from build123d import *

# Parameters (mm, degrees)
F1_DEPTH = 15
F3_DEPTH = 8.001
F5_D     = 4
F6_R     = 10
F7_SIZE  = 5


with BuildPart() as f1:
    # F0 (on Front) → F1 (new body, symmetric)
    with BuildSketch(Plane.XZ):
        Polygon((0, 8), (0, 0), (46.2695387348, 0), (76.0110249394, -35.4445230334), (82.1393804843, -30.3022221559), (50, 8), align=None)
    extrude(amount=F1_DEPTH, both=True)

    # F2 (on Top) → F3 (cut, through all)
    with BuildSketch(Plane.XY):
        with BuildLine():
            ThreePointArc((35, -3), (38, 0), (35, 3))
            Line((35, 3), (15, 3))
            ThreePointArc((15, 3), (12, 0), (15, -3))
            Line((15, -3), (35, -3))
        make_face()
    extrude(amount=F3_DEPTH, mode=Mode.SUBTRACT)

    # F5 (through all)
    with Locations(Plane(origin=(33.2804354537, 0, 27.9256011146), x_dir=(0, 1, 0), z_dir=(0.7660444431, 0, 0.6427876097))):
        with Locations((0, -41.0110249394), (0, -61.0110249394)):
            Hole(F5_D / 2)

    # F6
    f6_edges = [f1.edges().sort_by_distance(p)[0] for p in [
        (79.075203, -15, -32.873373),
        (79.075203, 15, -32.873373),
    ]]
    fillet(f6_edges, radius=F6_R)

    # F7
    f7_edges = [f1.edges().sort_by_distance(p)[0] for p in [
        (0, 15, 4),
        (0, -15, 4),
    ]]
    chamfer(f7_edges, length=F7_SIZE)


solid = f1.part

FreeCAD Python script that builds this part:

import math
import FreeCAD as App
import Part
import Sketcher

V = App.Vector
Q = App.Units.Quantity


def edges_at(feature, points):
    """Names of the edges that pass closest to the given points."""
    edges = feature.Shape.Edges
    near = lambda p: min(range(len(edges)), key=lambda i: edges[i].distToShape(Part.Vertex(*p))[0])
    return sorted({f"Edge{near(p) + 1}" for p in points})

doc = App.newDocument("Part")
body = doc.addObject("PartDesign::Body", "Body")

sketch1 = body.newObject("Sketcher::SketchObject", "Sketch")
sketch1.AttachmentSupport = (doc.getObject("XZ_Plane"), [""])
sketch1.MapMode = "FlatFace"
sketch1.addGeometry(Part.LineSegment(V(0, 8, 0), V(0, 0, 0)), False)
sketch1.addGeometry(Part.LineSegment(V(0, 0, 0), V(46, 0, 0)), False)
sketch1.addGeometry(Part.LineSegment(V(46, 0, 0), V(76, -35, 0)), False)
sketch1.addGeometry(Part.LineSegment(V(76, -35, 0), V(82, -30, 0)), False)
sketch1.addGeometry(Part.LineSegment(V(82, -30, 0), V(50, 8, 0)), False)
sketch1.addGeometry(Part.LineSegment(V(50, 8, 0), V(0, 8, 0)), False)
sketch1.addConstraint(Sketcher.Constraint("Coincident", 0, 2, 1, 1))
sketch1.addConstraint(Sketcher.Constraint("Coincident", 1, 2, 2, 1))
sketch1.addConstraint(Sketcher.Constraint("Coincident", 2, 2, 3, 1))
sketch1.addConstraint(Sketcher.Constraint("Coincident", 3, 2, 4, 1))
sketch1.addConstraint(Sketcher.Constraint("Coincident", 4, 2, 5, 1))
sketch1.addConstraint(Sketcher.Constraint("Coincident", 5, 2, 0, 1))
sketch1.addConstraint(Sketcher.Constraint("Vertical", 0))
sketch1.addConstraint(Sketcher.Constraint("Horizontal", 1))
sketch1.addConstraint(Sketcher.Constraint("Horizontal", 5))
sketch1.addConstraint(Sketcher.Constraint("Coincident", 0, 2, -1, 1))
sketch1.addConstraint(Sketcher.Constraint("Perpendicular", 2, 3))
sketch1.addConstraint(Sketcher.Constraint("Perpendicular", 3, 4))
sketch1.addConstraint(Sketcher.Constraint("DistanceX", 5, 2, 5, 1, 50.0))
sketch1.addConstraint(Sketcher.Constraint("DistanceY", 0, 2, 0, 1, 8.0))
sketch1.addConstraint(Sketcher.Constraint("Angle", 2, Q("-50 deg")))
sketch1.addConstraint(Sketcher.Constraint("Distance", 3, 8.0))
sketch1.addConstraint(Sketcher.Constraint("Distance", 4, 50.0))
pad1 = body.newObject("PartDesign::Pad", "Pad")
pad1.Profile = sketch1
pad1.Length = 30
pad1.Midplane = True

sketch2 = body.newObject("Sketcher::SketchObject", "Sketch001")
sketch2.AttachmentSupport = (doc.getObject("XY_Plane"), [""])
sketch2.MapMode = "FlatFace"
sketch2.addGeometry(Part.ArcOfCircle(Part.Circle(V(35, 0, 0), V(0, 0, 1), 3), math.radians(-90), math.radians(90)), False)
sketch2.addGeometry(Part.LineSegment(V(35, 3, 0), V(15, 3, 0)), False)
sketch2.addGeometry(Part.ArcOfCircle(Part.Circle(V(15, 0, 0), V(0, 0, 1), 3), math.radians(90), math.radians(270)), False)
sketch2.addGeometry(Part.LineSegment(V(15, -3, 0), V(35, -3, 0)), False)
sketch2.addConstraint(Sketcher.Constraint("Tangent", 0, 2, 1, 1))
sketch2.addConstraint(Sketcher.Constraint("Tangent", 1, 2, 2, 1))
sketch2.addConstraint(Sketcher.Constraint("Tangent", 2, 2, 3, 1))
sketch2.addConstraint(Sketcher.Constraint("Tangent", 3, 2, 0, 1))
sketch2.addConstraint(Sketcher.Constraint("Horizontal", 1))
sketch2.addConstraint(Sketcher.Constraint("Horizontal", 3))
sketch2.addConstraint(Sketcher.Constraint("PointOnObject", 0, 3, -1))
sketch2.addConstraint(Sketcher.Constraint("Radius", 0, 3.0))
sketch2.addConstraint(Sketcher.Constraint("DistanceX", 1, 2, 1, 1, 20.0))
sketch2.addConstraint(Sketcher.Constraint("DistanceX", -1, 1, 0, 3, 35.0))
pocket1 = body.newObject("PartDesign::Pocket", "Pocket")
pocket1.Profile = sketch2
pocket1.Type = "ThroughAll"
pocket1.Reversed = True

sketch3 = body.newObject("Sketcher::SketchObject", "Sketch002")
sketch3.Placement = App.Placement(V(33.280435, 0, 27.925601), App.Rotation(V(0, 1, 0), V(-0.64278761, 0, 0.766044443), V(0.766044443, 0, 0.64278761), "ZXY"))
sketch3.addGeometry(Part.Circle(V(0, -41, 0), V(0, 0, 1), 2), False)
sketch3.addGeometry(Part.Circle(V(0, -61, 0), V(0, 0, 1), 2), False)
sketch3.addConstraint(Sketcher.Constraint("Equal", 0, 1))
sketch3.addConstraint(Sketcher.Constraint("PointOnObject", 0, 3, -2))
sketch3.addConstraint(Sketcher.Constraint("PointOnObject", 1, 3, -2))
sketch3.addConstraint(Sketcher.Constraint("Diameter", 0, 4.0))
sketch3.addConstraint(Sketcher.Constraint("DistanceY", 1, 3, 0, 3, 20.0))
sketch3.addConstraint(Sketcher.Constraint("DistanceY", 0, 3, -1, 1, 41.011025))
doc.recompute()
hole = body.newObject("PartDesign::Hole", "Hole")
hole.Profile = sketch3
hole.ThreadType = "None"
hole.Diameter = 4
hole.DepthType = "ThroughAll"
doc.recompute()

fillet = body.newObject("PartDesign::Fillet", "Fillet")
fillet.Base = (hole, edges_at(hole, [(79.075, -15, -32.873), (79.075, 15, -32.873)]))
fillet.Radius = 10
doc.recompute()

chamfer = body.newObject("PartDesign::Chamfer", "Chamfer")
chamfer.Base = (fillet, edges_at(fillet, [(0, 15, 4), (0, -15, 4)]))
chamfer.Size = 5

doc.recompute()
